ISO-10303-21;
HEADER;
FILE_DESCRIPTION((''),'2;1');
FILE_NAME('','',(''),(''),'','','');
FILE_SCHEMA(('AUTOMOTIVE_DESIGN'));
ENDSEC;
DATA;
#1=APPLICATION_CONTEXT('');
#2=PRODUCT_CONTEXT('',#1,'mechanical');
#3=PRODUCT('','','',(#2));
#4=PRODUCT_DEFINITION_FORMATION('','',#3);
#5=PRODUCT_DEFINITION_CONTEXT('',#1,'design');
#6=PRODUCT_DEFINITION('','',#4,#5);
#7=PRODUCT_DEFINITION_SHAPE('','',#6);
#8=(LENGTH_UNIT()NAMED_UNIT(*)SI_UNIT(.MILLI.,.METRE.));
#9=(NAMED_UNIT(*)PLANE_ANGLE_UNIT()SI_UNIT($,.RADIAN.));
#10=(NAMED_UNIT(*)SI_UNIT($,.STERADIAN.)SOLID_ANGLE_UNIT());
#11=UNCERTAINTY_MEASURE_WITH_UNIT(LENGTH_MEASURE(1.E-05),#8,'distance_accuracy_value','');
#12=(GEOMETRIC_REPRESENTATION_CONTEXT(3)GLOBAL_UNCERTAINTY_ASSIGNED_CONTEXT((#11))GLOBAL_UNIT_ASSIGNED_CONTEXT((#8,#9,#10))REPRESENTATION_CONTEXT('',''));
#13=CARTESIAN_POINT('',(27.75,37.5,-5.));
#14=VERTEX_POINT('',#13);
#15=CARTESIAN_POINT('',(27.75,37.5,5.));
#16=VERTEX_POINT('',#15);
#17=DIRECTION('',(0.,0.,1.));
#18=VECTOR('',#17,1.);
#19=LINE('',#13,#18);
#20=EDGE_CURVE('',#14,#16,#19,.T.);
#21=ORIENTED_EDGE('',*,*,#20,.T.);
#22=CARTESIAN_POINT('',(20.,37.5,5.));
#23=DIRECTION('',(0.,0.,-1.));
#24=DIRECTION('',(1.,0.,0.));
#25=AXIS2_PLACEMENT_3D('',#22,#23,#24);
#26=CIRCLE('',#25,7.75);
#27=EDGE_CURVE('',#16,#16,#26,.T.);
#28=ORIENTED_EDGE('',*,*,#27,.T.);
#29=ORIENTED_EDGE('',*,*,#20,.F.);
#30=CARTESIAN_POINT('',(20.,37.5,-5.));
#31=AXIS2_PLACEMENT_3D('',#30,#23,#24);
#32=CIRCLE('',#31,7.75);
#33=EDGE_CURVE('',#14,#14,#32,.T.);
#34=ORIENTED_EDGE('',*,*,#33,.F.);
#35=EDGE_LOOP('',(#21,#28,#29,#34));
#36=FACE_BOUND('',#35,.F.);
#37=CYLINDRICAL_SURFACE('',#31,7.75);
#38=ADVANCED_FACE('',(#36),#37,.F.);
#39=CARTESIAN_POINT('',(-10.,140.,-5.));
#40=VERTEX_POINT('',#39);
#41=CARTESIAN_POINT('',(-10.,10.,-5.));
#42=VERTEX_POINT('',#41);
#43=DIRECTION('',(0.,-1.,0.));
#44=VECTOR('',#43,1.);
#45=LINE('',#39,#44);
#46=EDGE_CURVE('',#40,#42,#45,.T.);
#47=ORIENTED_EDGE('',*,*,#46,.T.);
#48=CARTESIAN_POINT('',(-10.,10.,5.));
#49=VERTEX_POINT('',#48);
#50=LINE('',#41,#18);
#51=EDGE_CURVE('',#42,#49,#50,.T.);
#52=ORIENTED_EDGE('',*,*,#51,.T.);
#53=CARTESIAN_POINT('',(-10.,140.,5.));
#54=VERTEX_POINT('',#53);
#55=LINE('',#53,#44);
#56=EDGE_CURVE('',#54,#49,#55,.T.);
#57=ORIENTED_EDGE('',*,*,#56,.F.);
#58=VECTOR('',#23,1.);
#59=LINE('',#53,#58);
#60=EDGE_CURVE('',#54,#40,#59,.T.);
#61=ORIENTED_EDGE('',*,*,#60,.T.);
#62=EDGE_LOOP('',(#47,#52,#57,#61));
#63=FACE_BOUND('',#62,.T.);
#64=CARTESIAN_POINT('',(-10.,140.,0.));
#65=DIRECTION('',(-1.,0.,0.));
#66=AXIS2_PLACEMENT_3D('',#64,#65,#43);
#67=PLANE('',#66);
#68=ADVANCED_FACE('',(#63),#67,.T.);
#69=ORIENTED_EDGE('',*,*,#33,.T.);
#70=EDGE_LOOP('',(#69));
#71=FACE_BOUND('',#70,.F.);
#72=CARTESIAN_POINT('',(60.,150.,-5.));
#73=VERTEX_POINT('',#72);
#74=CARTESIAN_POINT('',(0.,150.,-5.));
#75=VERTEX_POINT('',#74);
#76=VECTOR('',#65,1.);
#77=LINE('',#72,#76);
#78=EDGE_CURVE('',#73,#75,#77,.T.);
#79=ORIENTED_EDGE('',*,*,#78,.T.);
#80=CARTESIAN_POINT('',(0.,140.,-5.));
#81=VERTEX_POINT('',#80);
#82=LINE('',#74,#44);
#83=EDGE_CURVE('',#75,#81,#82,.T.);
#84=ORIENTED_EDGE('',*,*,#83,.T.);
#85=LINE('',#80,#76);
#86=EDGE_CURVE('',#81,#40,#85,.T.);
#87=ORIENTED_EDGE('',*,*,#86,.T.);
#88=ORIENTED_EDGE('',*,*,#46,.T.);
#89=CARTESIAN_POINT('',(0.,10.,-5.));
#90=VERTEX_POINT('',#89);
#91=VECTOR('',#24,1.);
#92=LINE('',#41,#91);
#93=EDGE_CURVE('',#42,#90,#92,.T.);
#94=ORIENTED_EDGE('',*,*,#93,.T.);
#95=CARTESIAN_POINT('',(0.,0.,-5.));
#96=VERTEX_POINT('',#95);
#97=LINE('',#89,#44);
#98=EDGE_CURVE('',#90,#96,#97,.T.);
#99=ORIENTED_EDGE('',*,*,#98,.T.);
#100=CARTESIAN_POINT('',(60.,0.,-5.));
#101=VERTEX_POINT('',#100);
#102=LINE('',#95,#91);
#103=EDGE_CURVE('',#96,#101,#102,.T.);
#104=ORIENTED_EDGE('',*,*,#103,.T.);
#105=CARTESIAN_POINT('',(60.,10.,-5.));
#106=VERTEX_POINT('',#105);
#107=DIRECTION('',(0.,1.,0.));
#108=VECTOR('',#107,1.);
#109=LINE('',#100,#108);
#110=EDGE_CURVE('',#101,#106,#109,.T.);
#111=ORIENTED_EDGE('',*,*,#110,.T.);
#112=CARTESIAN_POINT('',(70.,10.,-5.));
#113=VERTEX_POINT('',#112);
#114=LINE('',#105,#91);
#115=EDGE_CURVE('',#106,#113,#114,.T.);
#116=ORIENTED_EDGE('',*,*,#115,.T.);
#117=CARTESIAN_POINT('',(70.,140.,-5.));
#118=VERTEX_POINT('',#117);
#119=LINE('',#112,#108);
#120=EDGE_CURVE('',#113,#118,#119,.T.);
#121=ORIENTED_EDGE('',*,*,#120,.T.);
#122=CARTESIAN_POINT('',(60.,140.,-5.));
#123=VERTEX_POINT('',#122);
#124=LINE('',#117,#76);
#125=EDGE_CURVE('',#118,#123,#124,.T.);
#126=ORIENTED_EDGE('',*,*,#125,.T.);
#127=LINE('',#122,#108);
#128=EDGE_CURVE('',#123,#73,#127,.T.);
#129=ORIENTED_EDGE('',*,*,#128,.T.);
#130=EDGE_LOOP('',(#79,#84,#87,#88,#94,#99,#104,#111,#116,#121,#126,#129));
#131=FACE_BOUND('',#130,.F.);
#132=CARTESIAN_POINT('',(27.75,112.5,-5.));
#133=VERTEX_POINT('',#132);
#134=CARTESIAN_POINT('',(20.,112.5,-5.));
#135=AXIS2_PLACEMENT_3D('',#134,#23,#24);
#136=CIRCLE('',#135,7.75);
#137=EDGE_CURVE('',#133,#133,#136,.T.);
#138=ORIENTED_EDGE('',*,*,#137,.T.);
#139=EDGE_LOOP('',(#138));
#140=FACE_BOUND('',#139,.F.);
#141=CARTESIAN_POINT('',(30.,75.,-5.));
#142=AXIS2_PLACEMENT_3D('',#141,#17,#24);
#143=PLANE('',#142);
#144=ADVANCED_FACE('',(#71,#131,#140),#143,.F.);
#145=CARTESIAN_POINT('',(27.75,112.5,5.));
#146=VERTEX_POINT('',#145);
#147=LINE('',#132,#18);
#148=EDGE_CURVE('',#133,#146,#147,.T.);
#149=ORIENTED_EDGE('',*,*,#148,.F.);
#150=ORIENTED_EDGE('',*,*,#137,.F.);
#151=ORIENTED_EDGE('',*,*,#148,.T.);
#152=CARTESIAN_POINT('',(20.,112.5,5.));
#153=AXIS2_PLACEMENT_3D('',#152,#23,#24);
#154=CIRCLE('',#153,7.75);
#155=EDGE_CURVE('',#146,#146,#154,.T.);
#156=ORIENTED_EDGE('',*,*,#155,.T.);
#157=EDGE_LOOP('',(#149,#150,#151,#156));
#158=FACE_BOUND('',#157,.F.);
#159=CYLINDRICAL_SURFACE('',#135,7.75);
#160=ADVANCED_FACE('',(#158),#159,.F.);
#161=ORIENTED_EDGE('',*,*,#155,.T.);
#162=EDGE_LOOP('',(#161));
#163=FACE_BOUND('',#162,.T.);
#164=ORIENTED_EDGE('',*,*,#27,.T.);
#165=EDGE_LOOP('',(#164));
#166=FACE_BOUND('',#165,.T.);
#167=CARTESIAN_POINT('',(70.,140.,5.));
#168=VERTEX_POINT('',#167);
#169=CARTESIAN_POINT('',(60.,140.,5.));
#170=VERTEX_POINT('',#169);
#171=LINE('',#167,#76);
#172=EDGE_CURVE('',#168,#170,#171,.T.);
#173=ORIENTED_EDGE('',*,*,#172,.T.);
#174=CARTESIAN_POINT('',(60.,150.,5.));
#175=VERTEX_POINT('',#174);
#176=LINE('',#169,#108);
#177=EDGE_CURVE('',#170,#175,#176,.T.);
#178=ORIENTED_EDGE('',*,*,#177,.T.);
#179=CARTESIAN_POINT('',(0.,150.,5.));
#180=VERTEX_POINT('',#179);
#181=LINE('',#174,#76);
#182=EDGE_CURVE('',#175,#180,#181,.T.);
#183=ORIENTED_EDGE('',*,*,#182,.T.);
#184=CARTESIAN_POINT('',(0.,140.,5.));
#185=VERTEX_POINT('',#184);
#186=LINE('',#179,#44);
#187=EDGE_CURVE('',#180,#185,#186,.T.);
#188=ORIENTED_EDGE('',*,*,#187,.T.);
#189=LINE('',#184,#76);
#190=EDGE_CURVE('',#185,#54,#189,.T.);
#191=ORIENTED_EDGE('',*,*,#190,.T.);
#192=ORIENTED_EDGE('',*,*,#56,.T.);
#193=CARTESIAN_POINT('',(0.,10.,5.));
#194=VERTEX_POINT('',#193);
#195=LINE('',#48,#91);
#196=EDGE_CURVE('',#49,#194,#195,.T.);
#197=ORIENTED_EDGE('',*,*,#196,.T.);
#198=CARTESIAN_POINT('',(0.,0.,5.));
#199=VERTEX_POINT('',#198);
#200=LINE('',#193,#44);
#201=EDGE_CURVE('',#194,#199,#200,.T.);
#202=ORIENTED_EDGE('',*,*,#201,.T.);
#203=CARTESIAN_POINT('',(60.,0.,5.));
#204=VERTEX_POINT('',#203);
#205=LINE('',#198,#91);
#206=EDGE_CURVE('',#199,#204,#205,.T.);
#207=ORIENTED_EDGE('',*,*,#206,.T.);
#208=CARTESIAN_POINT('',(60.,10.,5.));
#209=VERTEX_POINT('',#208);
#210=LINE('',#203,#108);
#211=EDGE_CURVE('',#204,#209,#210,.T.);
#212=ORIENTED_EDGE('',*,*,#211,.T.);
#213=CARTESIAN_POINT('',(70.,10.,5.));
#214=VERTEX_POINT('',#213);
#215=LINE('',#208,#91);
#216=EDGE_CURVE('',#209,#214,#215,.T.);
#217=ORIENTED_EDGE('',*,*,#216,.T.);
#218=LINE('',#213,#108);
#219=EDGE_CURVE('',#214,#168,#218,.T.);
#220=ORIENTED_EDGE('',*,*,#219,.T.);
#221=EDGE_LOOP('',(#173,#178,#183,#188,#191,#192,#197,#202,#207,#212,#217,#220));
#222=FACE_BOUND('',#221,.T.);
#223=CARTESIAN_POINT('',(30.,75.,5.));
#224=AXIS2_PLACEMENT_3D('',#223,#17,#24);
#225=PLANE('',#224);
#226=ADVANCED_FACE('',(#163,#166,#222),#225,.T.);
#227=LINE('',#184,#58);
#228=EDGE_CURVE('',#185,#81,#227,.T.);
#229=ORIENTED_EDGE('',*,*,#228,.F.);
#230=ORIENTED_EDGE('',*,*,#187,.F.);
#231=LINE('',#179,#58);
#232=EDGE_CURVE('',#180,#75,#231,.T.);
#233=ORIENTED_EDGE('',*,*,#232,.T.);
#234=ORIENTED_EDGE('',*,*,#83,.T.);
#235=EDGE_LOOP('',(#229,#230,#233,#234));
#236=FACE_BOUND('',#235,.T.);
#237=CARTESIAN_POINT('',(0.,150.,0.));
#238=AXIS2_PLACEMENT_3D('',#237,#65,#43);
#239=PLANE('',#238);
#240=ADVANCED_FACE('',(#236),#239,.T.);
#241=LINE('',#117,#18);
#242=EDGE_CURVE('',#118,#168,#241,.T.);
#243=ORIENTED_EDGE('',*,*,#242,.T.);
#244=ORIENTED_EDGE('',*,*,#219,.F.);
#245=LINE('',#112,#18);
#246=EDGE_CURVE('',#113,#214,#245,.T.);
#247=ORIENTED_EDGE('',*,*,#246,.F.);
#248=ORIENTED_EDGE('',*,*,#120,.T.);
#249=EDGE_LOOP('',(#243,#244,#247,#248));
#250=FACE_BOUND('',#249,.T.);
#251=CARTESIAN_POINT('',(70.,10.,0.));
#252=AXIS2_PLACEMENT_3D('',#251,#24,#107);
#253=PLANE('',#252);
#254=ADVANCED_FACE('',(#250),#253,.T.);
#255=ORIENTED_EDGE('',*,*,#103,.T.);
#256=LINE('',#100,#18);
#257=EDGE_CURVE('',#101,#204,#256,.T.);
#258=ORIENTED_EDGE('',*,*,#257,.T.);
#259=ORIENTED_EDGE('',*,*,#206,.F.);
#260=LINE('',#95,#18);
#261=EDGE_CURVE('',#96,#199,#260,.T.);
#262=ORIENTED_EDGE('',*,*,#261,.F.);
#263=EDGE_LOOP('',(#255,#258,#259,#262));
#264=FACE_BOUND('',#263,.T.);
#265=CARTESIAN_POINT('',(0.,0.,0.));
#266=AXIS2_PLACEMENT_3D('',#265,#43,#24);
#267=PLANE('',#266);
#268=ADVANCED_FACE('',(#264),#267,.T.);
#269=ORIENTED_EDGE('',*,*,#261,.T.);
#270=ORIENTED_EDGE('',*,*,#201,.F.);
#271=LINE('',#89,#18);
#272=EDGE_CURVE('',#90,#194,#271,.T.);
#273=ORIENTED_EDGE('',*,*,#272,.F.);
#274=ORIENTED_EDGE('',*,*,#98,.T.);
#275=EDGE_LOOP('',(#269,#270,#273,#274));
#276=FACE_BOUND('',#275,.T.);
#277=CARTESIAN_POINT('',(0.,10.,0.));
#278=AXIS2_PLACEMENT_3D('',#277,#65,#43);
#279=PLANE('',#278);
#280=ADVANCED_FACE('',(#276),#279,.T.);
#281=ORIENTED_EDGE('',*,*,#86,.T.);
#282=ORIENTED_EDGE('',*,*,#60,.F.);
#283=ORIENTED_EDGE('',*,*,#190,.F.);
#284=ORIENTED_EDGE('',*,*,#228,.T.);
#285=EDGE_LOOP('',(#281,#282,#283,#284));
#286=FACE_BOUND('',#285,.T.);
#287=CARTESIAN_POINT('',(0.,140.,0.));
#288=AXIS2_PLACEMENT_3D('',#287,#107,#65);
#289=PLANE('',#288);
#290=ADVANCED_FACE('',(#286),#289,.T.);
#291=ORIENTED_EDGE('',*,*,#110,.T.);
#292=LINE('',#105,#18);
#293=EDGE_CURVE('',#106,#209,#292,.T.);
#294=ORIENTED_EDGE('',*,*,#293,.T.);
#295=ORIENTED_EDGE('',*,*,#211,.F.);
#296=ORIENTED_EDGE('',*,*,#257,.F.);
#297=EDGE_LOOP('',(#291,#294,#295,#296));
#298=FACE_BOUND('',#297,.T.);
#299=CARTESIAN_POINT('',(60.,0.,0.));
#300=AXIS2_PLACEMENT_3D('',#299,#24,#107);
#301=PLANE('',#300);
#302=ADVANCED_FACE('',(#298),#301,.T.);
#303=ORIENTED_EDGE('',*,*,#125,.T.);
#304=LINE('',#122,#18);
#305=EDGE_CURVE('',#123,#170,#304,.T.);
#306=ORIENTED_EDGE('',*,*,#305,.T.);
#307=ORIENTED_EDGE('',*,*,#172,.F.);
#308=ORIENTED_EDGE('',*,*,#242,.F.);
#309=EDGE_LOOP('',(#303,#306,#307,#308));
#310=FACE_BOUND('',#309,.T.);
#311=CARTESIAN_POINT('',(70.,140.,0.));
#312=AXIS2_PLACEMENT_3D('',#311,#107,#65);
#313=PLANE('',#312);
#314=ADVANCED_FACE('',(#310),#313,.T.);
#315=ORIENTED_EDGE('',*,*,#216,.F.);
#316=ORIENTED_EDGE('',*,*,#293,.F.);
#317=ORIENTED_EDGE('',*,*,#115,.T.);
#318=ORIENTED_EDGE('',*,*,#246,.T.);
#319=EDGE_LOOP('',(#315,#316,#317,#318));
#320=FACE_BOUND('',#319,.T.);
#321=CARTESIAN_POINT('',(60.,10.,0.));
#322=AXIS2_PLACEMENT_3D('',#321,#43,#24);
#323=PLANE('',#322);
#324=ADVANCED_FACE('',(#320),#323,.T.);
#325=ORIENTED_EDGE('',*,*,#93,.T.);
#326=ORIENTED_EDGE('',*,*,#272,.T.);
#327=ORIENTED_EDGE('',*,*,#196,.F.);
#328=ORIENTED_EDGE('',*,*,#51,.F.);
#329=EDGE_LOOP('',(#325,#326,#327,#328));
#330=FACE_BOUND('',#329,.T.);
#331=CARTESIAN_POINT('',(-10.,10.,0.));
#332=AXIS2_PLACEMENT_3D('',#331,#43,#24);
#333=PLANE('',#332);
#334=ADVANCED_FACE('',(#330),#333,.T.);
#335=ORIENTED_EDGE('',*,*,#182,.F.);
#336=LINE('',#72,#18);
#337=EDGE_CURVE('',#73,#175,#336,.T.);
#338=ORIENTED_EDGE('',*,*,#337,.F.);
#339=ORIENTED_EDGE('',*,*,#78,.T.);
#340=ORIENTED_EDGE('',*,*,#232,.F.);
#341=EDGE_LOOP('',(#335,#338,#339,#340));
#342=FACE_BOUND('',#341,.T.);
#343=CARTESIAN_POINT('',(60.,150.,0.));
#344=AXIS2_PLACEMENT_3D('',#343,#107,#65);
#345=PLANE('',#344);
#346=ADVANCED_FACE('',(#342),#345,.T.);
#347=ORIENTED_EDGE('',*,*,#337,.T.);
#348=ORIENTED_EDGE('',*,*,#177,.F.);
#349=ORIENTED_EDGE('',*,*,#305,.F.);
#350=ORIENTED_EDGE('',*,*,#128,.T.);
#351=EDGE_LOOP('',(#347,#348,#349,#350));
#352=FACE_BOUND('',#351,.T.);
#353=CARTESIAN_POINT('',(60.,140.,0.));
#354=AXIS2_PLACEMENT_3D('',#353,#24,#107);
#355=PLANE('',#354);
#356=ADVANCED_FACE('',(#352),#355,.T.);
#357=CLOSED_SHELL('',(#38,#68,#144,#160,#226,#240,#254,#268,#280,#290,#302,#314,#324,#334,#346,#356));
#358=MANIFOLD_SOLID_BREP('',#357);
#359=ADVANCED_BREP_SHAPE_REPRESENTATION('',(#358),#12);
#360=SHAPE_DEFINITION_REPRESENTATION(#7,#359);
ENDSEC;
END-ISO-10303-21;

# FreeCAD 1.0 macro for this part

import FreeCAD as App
import Part
import Sketcher
from FreeCAD import Vector

doc = App.newDocument("Part")
body = doc.addObject("PartDesign::Body", "Body")

# Sketch on XY plane
sketch1 = doc.addObject("Sketcher::SketchObject", "Sketch")
body.addObject(sketch1)
sketch1.AttachmentSupport = (doc.XY_Plane, [""])
sketch1.MapMode = "FlatFace"
sketch1.addGeometry(Part.LineSegment(Vector(-10, 140, 0), Vector(-10, 10, 0)), False)
sketch1.addGeometry(Part.LineSegment(Vector(-10, 10, 0), Vector(0, 10, 0)), False)
sketch1.addGeometry(Part.LineSegment(Vector(0, 10, 0), Vector(0, 0, 0)), False)
sketch1.addGeometry(Part.LineSegment(Vector(0, 0, 0), Vector(60, 0, 0)), False)
sketch1.addGeometry(Part.LineSegment(Vector(60, 0, 0), Vector(60, 10, 0)), False)
sketch1.addGeometry(Part.LineSegment(Vector(60, 10, 0), Vector(70, 10, 0)), False)
sketch1.addGeometry(Part.LineSegment(Vector(70, 10, 0), Vector(70, 140, 0)), False)
sketch1.addGeometry(Part.LineSegment(Vector(70, 140, 0), Vector(60, 140, 0)), False)
sketch1.addGeometry(Part.LineSegment(Vector(60, 140, 0), Vector(60, 150, 0)), False)
sketch1.addGeometry(Part.LineSegment(Vector(60, 150, 0), Vector(0, 150, 0)), False)
sketch1.addGeometry(Part.LineSegment(Vector(0, 150, 0), Vector(0, 140, 0)), False)
sketch1.addGeometry(Part.LineSegment(Vector(0, 140, 0), Vector(-10, 140, 0)), False)
sketch1.addConstraint(Sketcher.Constraint("Coincident", 0, 2, 1, 1))
sketch1.addConstraint(Sketcher.Constraint("Coincident", 1, 2, 2, 1))
sketch1.addConstraint(Sketcher.Constraint("Coincident", 2, 2, 3, 1))
sketch1.addConstraint(Sketcher.Constraint("Coincident", 3, 2, 4, 1))
sketch1.addConstraint(Sketcher.Constraint("Coincident", 4, 2, 5, 1))
sketch1.addConstraint(Sketcher.Constraint("Coincident", 5, 2, 6, 1))
sketch1.addConstraint(Sketcher.Constraint("Coincident", 6, 2, 7, 1))
sketch1.addConstraint(Sketcher.Constraint("Coincident", 7, 2, 8, 1))
sketch1.addConstraint(Sketcher.Constraint("Coincident", 8, 2, 9, 1))
sketch1.addConstraint(Sketcher.Constraint("Coincident", 9, 2, 10, 1))
sketch1.addConstraint(Sketcher.Constraint("Coincident", 10, 2, 11, 1))
sketch1.addConstraint(Sketcher.Constraint("Coincident", 11, 2, 0, 1))
sketch1.addConstraint(Sketcher.Constraint("Vertical", 0))
sketch1.addConstraint(Sketcher.Constraint("Horizontal", 1))
sketch1.addConstraint(Sketcher.Constraint("Vertical", 2))
sketch1.addConstraint(Sketcher.Constraint("Horizontal", 3))
sketch1.addConstraint(Sketcher.Constraint("Vertical", 4))
sketch1.addConstraint(Sketcher.Constraint("Horizontal", 5))
sketch1.addConstraint(Sketcher.Constraint("Vertical", 6))
sketch1.addConstraint(Sketcher.Constraint("Horizontal", 7))
sketch1.addConstraint(Sketcher.Constraint("Vertical", 8))
sketch1.addConstraint(Sketcher.Constraint("Horizontal", 9))
sketch1.addConstraint(Sketcher.Constraint("Vertical", 10))
sketch1.addConstraint(Sketcher.Constraint("Horizontal", 11))
sketch1.addConstraint(Sketcher.Constraint("Coincident", 2, 2, -1, 1))
sketch1.addConstraint(Sketcher.Constraint("PointOnObject", 9, 2, -2))
sketch1.addConstraint(Sketcher.Constraint("Horizontal", 1, 2, 4, 2))
sketch1.addConstraint(Sketcher.Constraint("Horizontal", 7, 2, 10, 2))
sketch1.addConstraint(Sketcher.Constraint("Vertical", 4, 2, 7, 2))
sketch1.addConstraint(Sketcher.Constraint("Equal", 1, 5))
sketch1.addConstraint(Sketcher.Constraint("Equal", 11, 2))
sketch1.addConstraint(Sketcher.Constraint("Equal", 4, 8))
sketch1.addConstraint(Sketcher.Constraint("DistanceX", 1, 1, 1, 2, 10.0))
sketch1.addConstraint(Sketcher.Constraint("DistanceX", 3, 1, 3, 2, 60.0))
sketch1.addConstraint(Sketcher.Constraint("DistanceY", 0, 2, 0, 1, 130.0))
pad1 = doc.addObject("PartDesign::Pad", "Pad")
body.addObject(pad1)
pad1.Profile = sketch1
pad1.Length = 10
pad1.Midplane = True

# Sketch on XY plane
sketch2 = doc.addObject("Sketcher::SketchObject", "Sketch001")
body.addObject(sketch2)
sketch2.AttachmentSupport = (doc.XY_Plane, [""])
sketch2.MapMode = "FlatFace"
sketch2.AttachmentOffset = App.Placement(Vector(0, 0, -5), App.Rotation())
sketch2.addGeometry(Part.Circle(Vector(20, 37.5, 0), Vector(0, 0, 1), 7.75), False)
sketch2.addGeometry(Part.Circle(Vector(20, 112.5, 0), Vector(0, 0, 1), 7.75), False)
sketch2.addConstraint(Sketcher.Constraint("Equal", 0, 1))
sketch2.addConstraint(Sketcher.Constraint("Vertical", 0, 3, 1, 3))
sketch2.addConstraint(Sketcher.Constraint("Diameter", 0, 15.5))
sketch2.addConstraint(Sketcher.Constraint("DistanceX", -1, 1, 0, 3, 20.0))
sketch2.addConstraint(Sketcher.Constraint("DistanceY", 0, 3, 1, 3, 75.0))
sketch2.addConstraint(Sketcher.Constraint("DistanceY", -1, 1, 0, 3, 37.5))
pocket1 = doc.addObject("PartDesign::Pocket", "Pocket")
body.addObject(pocket1)
pocket1.Profile = sketch2
pocket1.Type = "ThroughAll"
pocket1.Reversed = True

doc.recompute()
